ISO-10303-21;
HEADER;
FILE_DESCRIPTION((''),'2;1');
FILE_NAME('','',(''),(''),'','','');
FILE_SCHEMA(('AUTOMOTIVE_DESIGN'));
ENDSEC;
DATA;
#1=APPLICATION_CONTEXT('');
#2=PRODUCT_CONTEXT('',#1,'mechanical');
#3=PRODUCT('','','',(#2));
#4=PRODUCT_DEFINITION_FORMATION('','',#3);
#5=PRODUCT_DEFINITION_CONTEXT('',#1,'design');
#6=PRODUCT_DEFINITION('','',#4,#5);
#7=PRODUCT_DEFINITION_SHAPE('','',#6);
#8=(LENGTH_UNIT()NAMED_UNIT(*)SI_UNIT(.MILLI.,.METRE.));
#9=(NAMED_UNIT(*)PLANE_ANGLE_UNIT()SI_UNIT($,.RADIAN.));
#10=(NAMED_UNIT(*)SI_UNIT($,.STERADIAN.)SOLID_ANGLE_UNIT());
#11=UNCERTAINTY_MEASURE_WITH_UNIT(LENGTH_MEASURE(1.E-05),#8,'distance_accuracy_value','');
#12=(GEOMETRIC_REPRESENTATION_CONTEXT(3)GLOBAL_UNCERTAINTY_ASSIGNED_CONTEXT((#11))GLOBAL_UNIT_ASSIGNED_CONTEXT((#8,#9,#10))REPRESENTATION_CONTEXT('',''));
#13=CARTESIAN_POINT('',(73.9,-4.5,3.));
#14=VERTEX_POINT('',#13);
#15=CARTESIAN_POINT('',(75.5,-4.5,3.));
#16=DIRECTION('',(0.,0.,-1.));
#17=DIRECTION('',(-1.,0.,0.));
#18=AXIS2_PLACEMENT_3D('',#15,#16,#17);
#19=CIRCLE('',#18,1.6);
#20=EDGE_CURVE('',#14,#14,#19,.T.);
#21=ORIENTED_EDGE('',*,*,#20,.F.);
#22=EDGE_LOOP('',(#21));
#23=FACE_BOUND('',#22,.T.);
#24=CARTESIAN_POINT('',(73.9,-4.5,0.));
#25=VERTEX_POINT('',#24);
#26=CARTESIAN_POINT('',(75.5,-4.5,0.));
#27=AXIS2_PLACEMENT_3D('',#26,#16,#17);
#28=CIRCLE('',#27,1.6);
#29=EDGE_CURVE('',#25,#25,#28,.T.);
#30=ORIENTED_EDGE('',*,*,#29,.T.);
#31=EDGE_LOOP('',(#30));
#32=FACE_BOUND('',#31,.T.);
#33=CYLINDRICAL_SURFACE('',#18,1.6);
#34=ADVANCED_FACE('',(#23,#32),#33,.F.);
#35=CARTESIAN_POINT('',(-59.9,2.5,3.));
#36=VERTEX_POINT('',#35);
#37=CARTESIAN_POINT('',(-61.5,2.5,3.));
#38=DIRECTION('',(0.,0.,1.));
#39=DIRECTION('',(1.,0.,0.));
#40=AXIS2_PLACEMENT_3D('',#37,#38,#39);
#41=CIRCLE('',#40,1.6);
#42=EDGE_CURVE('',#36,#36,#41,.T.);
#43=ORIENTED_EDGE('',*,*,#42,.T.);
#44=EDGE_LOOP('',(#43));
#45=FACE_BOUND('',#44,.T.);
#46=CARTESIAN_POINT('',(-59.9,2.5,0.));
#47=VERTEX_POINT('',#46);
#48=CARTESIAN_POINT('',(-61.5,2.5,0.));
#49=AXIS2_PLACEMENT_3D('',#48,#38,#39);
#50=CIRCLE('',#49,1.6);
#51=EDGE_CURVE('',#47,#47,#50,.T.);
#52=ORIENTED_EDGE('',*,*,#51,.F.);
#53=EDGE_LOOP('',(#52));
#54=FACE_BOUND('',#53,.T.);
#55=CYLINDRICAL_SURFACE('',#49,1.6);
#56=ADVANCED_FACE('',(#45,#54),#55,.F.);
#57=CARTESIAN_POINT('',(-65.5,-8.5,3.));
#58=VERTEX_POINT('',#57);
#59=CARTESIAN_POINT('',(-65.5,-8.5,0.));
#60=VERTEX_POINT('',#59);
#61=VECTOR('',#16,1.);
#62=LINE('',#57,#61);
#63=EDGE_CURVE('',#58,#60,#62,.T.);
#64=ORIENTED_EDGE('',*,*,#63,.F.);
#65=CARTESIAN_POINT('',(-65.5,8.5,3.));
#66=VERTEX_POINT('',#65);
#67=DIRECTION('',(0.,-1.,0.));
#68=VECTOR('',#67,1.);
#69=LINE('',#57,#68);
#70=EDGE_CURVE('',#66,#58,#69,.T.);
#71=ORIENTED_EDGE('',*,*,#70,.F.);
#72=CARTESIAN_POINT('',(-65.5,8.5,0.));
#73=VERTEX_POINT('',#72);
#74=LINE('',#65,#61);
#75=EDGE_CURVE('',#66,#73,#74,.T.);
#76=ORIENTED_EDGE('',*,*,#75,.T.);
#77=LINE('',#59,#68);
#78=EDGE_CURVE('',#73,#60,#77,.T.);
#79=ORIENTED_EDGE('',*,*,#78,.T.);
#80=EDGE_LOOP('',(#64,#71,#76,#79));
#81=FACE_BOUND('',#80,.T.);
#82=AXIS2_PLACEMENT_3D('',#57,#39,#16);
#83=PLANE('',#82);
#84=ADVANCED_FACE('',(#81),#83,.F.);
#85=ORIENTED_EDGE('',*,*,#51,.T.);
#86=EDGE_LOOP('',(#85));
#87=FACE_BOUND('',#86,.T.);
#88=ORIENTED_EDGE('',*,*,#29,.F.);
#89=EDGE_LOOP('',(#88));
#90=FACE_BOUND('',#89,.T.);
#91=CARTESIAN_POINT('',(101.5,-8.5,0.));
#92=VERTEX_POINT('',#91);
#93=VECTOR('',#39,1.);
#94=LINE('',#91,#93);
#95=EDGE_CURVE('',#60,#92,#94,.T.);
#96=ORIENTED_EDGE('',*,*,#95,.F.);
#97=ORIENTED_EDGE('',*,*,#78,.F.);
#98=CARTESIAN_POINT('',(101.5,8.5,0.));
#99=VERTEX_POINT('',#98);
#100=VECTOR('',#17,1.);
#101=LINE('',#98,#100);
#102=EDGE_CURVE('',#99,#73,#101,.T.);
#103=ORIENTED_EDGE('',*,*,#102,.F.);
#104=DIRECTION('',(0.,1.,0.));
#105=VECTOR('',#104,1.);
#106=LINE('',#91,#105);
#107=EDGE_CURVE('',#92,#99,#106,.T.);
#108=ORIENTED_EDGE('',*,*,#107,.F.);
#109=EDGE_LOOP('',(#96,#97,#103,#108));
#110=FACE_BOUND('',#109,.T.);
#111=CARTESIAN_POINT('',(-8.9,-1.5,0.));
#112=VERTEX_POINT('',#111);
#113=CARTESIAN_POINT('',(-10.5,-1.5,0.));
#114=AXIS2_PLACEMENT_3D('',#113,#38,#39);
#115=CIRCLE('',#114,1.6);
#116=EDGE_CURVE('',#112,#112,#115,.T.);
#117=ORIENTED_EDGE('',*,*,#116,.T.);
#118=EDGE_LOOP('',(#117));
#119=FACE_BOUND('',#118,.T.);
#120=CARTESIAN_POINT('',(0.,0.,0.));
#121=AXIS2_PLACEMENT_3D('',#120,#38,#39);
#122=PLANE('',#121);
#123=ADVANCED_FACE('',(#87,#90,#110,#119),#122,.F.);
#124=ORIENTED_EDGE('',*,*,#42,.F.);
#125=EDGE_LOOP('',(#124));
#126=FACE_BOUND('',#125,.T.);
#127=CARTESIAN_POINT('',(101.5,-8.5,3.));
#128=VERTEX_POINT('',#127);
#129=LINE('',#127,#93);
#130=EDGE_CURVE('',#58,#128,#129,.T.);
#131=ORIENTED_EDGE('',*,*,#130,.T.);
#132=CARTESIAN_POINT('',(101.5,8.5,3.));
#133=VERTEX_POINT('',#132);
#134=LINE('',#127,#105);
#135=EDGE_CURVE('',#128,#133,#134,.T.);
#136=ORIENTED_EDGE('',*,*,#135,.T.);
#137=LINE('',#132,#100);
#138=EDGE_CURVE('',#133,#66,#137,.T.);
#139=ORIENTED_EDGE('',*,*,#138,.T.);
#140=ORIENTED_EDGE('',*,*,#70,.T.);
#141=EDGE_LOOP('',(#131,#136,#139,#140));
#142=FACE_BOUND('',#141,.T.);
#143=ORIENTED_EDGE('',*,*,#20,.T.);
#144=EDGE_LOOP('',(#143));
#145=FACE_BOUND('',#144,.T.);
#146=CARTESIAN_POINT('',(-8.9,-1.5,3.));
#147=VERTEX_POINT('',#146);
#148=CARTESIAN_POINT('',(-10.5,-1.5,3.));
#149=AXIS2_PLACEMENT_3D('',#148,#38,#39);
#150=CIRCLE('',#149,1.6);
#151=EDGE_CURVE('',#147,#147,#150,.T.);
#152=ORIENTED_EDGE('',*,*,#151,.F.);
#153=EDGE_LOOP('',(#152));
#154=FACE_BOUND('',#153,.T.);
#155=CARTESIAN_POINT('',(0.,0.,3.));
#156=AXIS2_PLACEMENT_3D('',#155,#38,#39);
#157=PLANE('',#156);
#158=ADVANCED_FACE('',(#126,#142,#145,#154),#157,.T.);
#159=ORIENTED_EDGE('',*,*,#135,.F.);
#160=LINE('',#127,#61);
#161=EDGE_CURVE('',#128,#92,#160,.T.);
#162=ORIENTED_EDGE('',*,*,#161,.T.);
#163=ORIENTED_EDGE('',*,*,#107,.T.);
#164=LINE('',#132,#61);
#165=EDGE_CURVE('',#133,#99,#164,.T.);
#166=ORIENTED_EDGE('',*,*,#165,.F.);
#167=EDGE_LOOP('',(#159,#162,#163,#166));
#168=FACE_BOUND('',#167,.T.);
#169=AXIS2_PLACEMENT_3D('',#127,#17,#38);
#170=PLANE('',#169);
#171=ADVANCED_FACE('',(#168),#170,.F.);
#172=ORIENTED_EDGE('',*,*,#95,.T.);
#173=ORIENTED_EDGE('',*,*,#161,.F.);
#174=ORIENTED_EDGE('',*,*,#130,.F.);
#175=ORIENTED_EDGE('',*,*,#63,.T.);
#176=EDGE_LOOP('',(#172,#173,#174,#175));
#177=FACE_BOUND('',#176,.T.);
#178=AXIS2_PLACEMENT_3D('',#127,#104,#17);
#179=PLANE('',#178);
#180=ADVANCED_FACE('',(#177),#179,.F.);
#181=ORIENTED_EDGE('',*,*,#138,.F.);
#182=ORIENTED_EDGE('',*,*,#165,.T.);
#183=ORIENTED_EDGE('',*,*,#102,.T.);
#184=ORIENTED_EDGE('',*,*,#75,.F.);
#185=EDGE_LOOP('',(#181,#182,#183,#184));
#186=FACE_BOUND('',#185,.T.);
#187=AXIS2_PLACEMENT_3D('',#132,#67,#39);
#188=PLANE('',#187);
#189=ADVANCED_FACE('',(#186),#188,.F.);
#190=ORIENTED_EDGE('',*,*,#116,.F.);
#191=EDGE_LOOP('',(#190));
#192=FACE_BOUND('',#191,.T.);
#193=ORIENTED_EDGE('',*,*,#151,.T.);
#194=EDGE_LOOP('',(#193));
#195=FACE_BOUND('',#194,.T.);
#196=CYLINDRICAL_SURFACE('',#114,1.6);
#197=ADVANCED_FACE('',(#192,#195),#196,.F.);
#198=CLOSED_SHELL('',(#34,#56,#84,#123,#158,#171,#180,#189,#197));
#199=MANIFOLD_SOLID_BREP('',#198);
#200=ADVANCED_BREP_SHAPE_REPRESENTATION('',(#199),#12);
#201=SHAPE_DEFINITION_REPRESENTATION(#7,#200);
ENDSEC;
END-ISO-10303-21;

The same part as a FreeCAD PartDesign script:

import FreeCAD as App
import Part
import Sketcher

doc = App.newDocument("Part")
body = doc.addObject("PartDesign::Body", "Body")

# Sketch on XY plane
sketch1 = body.newObject("Sketcher::SketchObject", "Sketch")
sketch1.AttachmentSupport = (doc.getObject("XY_Plane"), [""])
sketch1.MapMode = "FlatFace"
sketch1.addGeometry(Part.LineSegment(App.Vector(-66, 8, 0), App.Vector(-66, -8, 0)), False)
sketch1.addGeometry(Part.LineSegment(App.Vector(-66, -8, 0), App.Vector(102, -8, 0)), False)
sketch1.addGeometry(Part.LineSegment(App.Vector(102, -8, 0), App.Vector(102, 8, 0)), False)
sketch1.addGeometry(Part.LineSegment(App.Vector(102, 8, 0), App.Vector(-66, 8, 0)), False)
sketch1.addConstraint(Sketcher.Constraint("Coincident", 0, 2, 1, 1))
sketch1.addConstraint(Sketcher.Constraint("Coincident", 1, 2, 2, 1))
sketch1.addConstraint(Sketcher.Constraint("Coincident", 2, 2, 3, 1))
sketch1.addConstraint(Sketcher.Constraint("Coincident", 3, 2, 0, 1))
sketch1.addConstraint(Sketcher.Constraint("Vertical", 0))
sketch1.addConstraint(Sketcher.Constraint("Horizontal", 1))
sketch1.addConstraint(Sketcher.Constraint("Vertical", 2))
sketch1.addConstraint(Sketcher.Constraint("Horizontal", 3))
sketch1.addConstraint(Sketcher.Constraint("DistanceX", 1, 1, 1, 2, 167.0))
sketch1.addConstraint(Sketcher.Constraint("DistanceY", 0, 2, 0, 1, 17.0))
sketch1.addConstraint(Sketcher.Constraint("DistanceX", 0, 2, -1, 1, 65.5))
sketch1.addConstraint(Sketcher.Constraint("DistanceY", 0, 2, -1, 1, 8.5))
pad1 = body.newObject("PartDesign::Pad", "Pad")
pad1.Profile = sketch1
pad1.Length = 3

# Sketch on XY plane
sketch2 = body.newObject("Sketcher::SketchObject", "Sketch001")
sketch2.AttachmentSupport = (doc.getObject("XY_Plane"), [""])
sketch2.MapMode = "FlatFace"
sketch2.AttachmentOffset = App.Placement(App.Vector(0, 0, 3), App.Rotation())
sketch2.addGeometry(Part.Circle(App.Vector(-61.5, 2.5, 0), App.Vector(0, 0, 1), 1.6), False)
sketch2.addConstraint(Sketcher.Constraint("Diameter", 0, 3.2))
sketch2.addConstraint(Sketcher.Constraint("DistanceX", 0, 3, -1, 1, 61.5))
sketch2.addConstraint(Sketcher.Constraint("DistanceY", -1, 1, 0, 3, 2.5))
pocket1 = body.newObject("PartDesign::Pocket", "Pocket")
pocket1.Profile = sketch2
pocket1.Type = "ThroughAll"

# Sketch on XY plane
sketch3 = body.newObject("Sketcher::SketchObject", "Sketch002")
sketch3.AttachmentSupport = (doc.getObject("XY_Plane"), [""])
sketch3.MapMode = "FlatFace"
sketch3.addGeometry(Part.Circle(App.Vector(75.5, -4.5, 0), App.Vector(0, 0, 1), 1.6), False)
sketch3.addConstraint(Sketcher.Constraint("Diameter", 0, 3.2))
sketch3.addConstraint(Sketcher.Constraint("DistanceX", -1, 1, 0, 3, 75.5))
sketch3.addConstraint(Sketcher.Constraint("DistanceY", 0, 3, -1, 1, 4.5))
pocket2 = body.newObject("PartDesign::Pocket", "Pocket001")
pocket2.Profile = sketch3
pocket2.Type = "ThroughAll"
pocket2.Reversed = True

# Sketch on XY plane
sketch4 = body.newObject("Sketcher::SketchObject", "Sketch003")
sketch4.AttachmentSupport = (doc.getObject("XY_Plane"), [""])
sketch4.MapMode = "FlatFace"
sketch4.AttachmentOffset = App.Placement(App.Vector(0, 0, 3), App.Rotation())
sketch4.addGeometry(Part.Circle(App.Vector(-10.5, -1.5, 0), App.Vector(0, 0, 1), 1.6), False)
sketch4.addConstraint(Sketcher.Constraint("Diameter", 0, 3.2))
sketch4.addConstraint(Sketcher.Constraint("DistanceX", 0, 3, -1, 1, 10.5))
sketch4.addConstraint(Sketcher.Constraint("DistanceY", 0, 3, -1, 1, 1.5))
pocket3 = body.newObject("PartDesign::Pocket", "Pocket002")
pocket3.Profile = sketch4
pocket3.Type = "ThroughAll"

doc.recompute()
